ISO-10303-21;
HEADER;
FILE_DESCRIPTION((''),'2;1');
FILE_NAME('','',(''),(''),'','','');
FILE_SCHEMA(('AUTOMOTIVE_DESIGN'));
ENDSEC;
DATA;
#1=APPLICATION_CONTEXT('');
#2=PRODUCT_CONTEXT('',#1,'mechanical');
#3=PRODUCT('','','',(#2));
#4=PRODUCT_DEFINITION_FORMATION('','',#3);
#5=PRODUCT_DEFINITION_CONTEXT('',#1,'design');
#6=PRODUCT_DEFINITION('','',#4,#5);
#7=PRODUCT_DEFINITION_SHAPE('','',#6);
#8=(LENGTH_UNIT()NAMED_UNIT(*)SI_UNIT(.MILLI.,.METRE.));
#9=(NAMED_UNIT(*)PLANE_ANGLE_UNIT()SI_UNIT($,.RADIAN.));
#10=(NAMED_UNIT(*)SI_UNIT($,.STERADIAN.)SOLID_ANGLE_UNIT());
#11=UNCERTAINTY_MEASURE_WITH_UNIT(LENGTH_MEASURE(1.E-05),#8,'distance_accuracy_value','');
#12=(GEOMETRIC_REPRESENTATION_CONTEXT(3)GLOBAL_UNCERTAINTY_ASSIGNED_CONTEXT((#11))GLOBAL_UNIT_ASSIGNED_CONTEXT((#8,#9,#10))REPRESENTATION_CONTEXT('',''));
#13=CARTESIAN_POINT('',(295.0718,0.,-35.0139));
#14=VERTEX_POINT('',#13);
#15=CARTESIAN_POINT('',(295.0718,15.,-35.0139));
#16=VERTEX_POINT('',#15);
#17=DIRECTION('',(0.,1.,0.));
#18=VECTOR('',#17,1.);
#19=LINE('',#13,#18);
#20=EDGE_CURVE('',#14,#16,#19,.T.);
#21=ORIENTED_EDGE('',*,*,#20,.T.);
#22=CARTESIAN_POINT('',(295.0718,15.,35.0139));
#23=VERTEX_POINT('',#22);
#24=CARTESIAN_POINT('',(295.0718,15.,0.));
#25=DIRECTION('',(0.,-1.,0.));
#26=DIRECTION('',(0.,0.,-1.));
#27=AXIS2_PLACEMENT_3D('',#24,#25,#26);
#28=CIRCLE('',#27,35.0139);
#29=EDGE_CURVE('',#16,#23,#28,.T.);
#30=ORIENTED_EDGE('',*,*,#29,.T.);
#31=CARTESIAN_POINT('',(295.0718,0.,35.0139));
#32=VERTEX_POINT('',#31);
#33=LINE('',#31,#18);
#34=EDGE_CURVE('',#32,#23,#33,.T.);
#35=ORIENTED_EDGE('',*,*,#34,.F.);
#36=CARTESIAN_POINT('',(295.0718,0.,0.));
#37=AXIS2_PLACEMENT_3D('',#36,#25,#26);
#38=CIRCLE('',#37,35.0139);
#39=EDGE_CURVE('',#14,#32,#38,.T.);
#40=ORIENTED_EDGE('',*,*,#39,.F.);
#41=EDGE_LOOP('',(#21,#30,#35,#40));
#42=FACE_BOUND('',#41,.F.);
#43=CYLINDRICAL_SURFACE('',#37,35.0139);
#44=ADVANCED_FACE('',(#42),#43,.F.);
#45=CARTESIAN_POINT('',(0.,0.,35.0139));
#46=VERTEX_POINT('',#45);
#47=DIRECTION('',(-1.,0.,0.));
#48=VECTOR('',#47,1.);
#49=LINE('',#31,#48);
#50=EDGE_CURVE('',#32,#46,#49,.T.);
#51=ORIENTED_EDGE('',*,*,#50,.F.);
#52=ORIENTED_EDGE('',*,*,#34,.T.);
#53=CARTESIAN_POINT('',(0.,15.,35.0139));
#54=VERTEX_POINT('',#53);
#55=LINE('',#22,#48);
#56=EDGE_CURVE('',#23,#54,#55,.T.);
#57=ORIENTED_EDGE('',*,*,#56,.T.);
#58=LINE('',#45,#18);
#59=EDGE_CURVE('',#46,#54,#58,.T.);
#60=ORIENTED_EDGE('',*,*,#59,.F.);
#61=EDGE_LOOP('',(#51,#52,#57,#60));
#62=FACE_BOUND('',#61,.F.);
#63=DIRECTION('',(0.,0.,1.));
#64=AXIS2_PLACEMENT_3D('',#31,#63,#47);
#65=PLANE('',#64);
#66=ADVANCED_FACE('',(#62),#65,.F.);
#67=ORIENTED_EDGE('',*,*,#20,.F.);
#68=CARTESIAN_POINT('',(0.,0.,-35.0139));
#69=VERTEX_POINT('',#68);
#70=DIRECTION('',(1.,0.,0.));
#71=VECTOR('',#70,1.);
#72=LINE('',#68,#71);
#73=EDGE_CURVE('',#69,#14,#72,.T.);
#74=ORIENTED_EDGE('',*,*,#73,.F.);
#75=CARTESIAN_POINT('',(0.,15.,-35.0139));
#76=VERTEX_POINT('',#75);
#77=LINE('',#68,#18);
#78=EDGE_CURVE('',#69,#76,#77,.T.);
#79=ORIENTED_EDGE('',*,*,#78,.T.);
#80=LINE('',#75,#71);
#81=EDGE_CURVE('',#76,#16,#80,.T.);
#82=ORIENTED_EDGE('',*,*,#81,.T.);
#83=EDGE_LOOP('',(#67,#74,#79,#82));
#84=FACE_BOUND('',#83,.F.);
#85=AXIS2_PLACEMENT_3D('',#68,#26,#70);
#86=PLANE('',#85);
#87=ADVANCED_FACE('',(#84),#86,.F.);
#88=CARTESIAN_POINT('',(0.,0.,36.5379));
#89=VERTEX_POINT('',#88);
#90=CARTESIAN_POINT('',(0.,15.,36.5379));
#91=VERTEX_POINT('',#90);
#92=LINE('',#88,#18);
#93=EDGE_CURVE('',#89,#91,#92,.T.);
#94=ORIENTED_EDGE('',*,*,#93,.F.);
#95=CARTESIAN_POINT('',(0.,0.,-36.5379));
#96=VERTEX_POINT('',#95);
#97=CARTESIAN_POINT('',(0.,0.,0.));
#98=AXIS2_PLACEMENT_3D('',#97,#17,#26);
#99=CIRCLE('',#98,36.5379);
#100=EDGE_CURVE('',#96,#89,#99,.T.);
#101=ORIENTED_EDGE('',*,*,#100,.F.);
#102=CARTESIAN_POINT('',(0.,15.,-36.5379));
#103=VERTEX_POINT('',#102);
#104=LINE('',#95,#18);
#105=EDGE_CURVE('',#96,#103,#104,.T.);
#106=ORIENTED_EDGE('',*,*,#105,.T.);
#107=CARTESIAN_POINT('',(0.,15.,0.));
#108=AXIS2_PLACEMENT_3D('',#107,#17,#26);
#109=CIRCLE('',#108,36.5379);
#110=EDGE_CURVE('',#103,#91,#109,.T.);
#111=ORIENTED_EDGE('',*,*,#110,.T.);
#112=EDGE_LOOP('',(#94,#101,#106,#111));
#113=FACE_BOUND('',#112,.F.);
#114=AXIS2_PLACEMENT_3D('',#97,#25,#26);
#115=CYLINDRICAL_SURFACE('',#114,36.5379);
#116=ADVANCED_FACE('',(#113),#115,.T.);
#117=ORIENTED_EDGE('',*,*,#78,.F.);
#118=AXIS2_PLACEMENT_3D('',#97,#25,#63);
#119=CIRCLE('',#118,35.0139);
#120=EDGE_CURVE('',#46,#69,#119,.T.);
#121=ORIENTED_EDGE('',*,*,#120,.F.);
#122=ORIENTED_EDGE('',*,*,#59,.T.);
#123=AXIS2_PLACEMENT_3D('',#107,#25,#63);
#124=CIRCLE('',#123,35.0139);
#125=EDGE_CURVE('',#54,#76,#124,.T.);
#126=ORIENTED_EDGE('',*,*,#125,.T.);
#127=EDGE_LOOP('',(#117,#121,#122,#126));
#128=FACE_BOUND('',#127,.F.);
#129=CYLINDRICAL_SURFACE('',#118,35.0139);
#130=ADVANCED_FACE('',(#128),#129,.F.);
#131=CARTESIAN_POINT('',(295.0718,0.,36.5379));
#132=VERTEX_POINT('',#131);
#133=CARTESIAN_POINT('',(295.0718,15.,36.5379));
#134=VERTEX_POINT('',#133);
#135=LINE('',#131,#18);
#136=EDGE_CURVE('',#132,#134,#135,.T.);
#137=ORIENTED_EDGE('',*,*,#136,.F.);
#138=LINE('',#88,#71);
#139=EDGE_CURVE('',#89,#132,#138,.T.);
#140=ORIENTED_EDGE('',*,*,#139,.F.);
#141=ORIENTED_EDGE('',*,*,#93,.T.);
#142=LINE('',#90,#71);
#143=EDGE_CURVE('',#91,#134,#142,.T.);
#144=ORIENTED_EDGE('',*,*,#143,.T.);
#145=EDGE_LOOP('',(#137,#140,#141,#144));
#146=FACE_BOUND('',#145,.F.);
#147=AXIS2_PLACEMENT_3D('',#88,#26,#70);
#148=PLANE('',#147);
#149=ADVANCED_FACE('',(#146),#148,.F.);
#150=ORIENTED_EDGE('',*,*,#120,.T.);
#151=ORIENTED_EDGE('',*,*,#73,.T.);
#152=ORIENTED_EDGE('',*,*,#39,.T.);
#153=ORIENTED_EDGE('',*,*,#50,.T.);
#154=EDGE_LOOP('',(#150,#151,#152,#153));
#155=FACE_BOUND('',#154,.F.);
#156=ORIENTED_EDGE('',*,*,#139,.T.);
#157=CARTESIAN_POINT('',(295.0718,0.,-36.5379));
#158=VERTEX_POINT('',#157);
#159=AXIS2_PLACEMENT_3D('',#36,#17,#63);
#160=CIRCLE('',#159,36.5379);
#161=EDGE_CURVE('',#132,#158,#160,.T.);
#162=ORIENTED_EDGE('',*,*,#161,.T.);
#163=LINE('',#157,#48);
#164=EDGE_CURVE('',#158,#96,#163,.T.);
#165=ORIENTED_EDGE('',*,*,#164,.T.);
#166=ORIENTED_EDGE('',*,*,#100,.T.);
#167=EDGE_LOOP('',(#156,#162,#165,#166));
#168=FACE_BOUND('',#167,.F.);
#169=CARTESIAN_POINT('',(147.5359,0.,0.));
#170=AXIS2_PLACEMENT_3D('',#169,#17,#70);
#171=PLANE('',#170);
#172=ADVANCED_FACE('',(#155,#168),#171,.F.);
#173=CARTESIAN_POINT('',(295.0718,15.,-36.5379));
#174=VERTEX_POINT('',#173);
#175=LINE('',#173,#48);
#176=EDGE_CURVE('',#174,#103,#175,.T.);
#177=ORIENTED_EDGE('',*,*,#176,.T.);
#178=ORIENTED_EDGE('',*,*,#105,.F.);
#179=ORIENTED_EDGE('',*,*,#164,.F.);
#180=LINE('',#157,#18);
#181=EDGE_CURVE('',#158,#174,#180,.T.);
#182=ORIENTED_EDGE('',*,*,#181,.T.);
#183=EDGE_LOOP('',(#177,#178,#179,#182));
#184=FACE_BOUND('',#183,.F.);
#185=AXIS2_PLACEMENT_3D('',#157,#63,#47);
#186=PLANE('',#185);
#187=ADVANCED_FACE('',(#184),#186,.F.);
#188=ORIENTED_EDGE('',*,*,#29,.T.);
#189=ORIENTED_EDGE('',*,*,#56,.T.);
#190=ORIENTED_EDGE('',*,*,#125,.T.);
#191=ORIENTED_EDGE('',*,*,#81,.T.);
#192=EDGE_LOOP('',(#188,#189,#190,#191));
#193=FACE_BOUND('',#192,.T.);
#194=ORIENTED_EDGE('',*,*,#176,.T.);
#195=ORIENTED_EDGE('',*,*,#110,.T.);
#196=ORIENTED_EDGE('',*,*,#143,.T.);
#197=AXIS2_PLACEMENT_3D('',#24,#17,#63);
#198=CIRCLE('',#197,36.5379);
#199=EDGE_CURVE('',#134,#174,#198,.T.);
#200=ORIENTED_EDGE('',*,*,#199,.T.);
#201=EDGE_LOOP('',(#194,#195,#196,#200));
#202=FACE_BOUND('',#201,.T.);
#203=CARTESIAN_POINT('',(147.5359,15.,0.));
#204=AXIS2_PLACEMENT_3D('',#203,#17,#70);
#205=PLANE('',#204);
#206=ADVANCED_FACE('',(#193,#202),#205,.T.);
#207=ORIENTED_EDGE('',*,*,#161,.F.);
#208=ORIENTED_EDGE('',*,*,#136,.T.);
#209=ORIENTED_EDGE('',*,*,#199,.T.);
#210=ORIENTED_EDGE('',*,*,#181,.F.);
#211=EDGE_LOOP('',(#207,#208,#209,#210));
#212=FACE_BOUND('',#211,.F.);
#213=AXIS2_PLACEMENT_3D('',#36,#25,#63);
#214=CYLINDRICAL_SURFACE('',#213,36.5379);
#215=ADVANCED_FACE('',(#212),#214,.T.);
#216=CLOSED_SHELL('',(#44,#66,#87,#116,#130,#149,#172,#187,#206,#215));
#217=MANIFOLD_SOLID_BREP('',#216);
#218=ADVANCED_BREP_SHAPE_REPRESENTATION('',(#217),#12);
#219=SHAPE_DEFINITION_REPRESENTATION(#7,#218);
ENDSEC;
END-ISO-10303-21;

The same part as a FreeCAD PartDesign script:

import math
import FreeCAD as App
import Part
import Sketcher
from FreeCAD import Vector
Q = App.Units.Quantity

doc = App.newDocument("Part")
body = doc.addObject("PartDesign::Body", "Body")

sketch1 = body.newObject("Sketcher::SketchObject", "Sketch")
sketch1.AttachmentSupport = (doc.getObject("XZ_Plane"), [""])
sketch1.MapMode = "FlatFace"
sketch1.addGeometry([
    Part.LineSegment(Vector(0, 36.5379, 0), Vector(295.0718, 36.5379, 0)),
    Part.ArcOfCircle(Part.Circle(Vector(295.0718, 0, 0), Vector(0, 0, 1), 36.5379), math.radians(-90), math.radians(90)),
    Part.LineSegment(Vector(295.0718, -36.5379, 0), Vector(0, -36.5379, 0)),
    Part.ArcOfCircle(Part.Circle(Vector(0, 0, 0), Vector(0, 0, 1), 36.5379), math.radians(90), math.radians(270)),
    Part.ArcOfCircle(Part.Circle(Vector(0, 0, 0), Vector(0, 0, 1), 35.0139), math.radians(90), math.radians(270)),
    Part.LineSegment(Vector(0, -35.0139, 0), Vector(295.0718, -35.0139, 0)),
    Part.ArcOfCircle(Part.Circle(Vector(295.0718, 0, 0), Vector(0, 0, 1), 35.0139), math.radians(-90), math.radians(90)),
    Part.LineSegment(Vector(295.0718, 35.0139, 0), Vector(0, 35.0139, 0)),
], False)
sketch1.addConstraint([
    Sketcher.Constraint("Tangent", 0, 2, 1, 2),
    Sketcher.Constraint("Tangent", 1, 1, 2, 1),
    Sketcher.Constraint("Tangent", 2, 2, 3, 2),
    Sketcher.Constraint("Tangent", 3, 1, 0, 1),
    Sketcher.Constraint("Tangent", 4, 2, 5, 1),
    Sketcher.Constraint("Tangent", 5, 2, 6, 1),
    Sketcher.Constraint("Tangent", 6, 2, 7, 1),
    Sketcher.Constraint("Tangent", 7, 2, 4, 1),
    Sketcher.Constraint("Horizontal", 0),
    Sketcher.Constraint("Horizontal", 2),
    Sketcher.Constraint("Horizontal", 5),
    Sketcher.Constraint("Horizontal", 7),
    Sketcher.Constraint("Coincident", 3, 3, -1, 1),
    Sketcher.Constraint("Coincident", 4, 3, -1, 1),
    Sketcher.Constraint("Vertical", 6, 3, 0, 2),
    Sketcher.Constraint("Radius", 1, Q("1.4385 in")),
    Sketcher.Constraint("Radius", 4, Q("1.3785 in")),
    Sketcher.Constraint("DistanceX", 0, 1, 0, 2, Q("11.617 in")),
])
pad1 = body.newObject("PartDesign::Pad", "Pad")
pad1.Profile = sketch1
pad1.Length = 15
pad1.Reversed = True

doc.recompute()
